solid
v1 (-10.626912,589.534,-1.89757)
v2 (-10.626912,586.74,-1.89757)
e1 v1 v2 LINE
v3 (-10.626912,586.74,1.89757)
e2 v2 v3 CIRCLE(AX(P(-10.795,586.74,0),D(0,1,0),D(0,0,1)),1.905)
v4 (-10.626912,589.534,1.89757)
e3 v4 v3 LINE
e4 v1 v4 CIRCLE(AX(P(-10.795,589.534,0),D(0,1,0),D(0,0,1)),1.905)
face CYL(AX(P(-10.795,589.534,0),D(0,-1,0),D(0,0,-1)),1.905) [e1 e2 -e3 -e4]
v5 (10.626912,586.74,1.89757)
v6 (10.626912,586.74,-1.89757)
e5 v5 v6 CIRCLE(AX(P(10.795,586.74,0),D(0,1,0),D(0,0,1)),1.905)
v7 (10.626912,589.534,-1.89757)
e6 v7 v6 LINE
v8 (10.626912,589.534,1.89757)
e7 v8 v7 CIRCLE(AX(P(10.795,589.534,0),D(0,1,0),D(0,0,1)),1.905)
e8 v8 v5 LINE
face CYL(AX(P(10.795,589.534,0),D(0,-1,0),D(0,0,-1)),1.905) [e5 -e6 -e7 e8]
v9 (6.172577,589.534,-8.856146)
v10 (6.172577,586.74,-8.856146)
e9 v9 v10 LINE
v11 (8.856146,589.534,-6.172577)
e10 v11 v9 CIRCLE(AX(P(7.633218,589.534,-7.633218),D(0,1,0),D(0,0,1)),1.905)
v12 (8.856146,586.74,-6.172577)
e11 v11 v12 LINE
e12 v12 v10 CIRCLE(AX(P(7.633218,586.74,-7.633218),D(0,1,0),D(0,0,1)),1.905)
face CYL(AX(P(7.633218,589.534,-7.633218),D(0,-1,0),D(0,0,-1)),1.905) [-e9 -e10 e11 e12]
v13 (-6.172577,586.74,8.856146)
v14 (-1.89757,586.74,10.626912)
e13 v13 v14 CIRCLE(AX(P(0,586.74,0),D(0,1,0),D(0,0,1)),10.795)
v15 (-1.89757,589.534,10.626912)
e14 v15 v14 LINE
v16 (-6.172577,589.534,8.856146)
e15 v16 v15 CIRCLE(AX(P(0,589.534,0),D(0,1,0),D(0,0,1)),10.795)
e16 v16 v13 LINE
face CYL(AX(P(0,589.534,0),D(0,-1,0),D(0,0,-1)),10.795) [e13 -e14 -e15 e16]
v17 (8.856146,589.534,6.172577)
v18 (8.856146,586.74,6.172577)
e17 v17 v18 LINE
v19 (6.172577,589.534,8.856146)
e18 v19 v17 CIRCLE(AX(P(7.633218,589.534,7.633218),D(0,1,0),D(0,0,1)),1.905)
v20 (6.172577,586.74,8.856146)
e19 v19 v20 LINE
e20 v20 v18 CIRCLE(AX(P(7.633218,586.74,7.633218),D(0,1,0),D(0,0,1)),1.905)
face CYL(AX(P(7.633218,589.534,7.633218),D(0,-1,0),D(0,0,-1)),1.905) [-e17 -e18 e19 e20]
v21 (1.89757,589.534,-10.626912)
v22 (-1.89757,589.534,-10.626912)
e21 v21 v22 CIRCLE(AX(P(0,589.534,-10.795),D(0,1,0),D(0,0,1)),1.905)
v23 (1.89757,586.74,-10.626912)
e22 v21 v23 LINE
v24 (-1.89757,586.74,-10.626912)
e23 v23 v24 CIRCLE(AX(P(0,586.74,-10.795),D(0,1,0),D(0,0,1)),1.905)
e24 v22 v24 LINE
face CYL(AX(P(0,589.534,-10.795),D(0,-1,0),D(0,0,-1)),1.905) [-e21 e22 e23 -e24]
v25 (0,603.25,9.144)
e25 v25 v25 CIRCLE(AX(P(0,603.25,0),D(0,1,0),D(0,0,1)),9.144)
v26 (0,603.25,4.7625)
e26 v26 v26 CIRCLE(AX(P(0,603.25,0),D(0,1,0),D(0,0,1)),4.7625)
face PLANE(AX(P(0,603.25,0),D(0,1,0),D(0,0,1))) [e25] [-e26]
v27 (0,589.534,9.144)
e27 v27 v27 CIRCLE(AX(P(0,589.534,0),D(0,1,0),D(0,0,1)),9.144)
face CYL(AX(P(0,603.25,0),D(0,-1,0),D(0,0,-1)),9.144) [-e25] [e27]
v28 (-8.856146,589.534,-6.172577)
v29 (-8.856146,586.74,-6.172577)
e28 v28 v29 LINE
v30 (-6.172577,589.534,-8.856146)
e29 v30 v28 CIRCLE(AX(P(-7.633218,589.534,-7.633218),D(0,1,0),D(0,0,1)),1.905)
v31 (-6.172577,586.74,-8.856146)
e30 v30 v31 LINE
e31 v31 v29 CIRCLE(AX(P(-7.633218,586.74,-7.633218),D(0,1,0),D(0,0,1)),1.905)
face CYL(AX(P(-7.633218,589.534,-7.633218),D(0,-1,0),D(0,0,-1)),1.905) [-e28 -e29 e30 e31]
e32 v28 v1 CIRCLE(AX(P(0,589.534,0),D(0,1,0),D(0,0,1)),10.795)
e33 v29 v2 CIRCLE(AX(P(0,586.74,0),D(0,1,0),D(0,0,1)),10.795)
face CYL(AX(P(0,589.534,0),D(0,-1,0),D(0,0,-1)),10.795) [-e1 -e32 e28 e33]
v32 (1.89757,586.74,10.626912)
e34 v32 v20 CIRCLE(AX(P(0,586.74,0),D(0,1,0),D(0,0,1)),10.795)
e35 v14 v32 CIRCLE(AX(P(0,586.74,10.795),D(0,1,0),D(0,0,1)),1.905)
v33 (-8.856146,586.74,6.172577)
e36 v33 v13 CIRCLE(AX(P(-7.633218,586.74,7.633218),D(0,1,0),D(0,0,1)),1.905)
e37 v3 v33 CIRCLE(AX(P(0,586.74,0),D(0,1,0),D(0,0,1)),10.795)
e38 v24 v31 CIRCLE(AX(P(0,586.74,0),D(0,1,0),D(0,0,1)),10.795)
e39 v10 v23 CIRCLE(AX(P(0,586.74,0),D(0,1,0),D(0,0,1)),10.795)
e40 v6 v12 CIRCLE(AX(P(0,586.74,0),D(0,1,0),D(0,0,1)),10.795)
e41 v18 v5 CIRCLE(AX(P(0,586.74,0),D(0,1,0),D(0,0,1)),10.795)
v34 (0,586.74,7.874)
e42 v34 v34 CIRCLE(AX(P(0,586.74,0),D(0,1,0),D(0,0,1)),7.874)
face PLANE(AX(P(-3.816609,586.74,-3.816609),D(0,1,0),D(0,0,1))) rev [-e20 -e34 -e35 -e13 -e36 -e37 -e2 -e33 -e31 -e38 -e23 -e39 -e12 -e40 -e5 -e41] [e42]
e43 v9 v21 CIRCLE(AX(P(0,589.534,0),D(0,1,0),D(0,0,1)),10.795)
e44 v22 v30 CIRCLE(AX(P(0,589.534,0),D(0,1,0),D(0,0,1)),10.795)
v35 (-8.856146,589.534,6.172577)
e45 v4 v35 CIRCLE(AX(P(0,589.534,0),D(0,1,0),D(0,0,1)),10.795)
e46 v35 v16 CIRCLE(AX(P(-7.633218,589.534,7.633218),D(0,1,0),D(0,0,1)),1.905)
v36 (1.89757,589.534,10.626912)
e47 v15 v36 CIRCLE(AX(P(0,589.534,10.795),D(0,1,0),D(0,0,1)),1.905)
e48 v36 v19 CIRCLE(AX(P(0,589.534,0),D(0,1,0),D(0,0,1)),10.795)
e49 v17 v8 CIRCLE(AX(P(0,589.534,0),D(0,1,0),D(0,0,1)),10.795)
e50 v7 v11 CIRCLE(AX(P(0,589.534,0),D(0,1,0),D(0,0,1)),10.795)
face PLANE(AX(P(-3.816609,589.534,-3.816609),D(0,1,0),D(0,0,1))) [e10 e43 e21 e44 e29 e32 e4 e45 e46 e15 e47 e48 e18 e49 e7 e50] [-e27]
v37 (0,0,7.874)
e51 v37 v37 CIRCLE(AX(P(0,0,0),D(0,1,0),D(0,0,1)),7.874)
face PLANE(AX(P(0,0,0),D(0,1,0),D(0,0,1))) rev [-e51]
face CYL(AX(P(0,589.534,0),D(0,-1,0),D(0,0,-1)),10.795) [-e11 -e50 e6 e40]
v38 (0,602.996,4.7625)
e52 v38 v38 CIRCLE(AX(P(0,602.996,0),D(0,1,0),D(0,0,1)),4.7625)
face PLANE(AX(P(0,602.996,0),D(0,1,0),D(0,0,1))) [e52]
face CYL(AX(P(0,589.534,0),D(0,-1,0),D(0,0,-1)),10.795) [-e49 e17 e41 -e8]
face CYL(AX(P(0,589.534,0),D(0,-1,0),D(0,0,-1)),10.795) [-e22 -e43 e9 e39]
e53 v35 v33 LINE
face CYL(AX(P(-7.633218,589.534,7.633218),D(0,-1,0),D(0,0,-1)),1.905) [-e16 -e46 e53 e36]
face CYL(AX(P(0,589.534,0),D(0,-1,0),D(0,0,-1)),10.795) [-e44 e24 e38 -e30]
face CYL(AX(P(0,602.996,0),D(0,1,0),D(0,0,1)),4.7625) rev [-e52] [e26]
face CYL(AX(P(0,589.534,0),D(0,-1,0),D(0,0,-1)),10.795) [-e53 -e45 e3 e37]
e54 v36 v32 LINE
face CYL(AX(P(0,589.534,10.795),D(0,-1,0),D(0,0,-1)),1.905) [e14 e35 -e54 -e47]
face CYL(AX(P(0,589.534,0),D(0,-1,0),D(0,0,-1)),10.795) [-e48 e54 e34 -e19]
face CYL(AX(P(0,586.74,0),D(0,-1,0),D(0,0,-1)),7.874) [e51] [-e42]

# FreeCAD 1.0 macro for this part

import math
import FreeCAD as App
import Part
import Sketcher
Q = App.Units.Quantity

doc = App.newDocument("Part")
body = doc.addObject("PartDesign::Body", "Body")

# Sketch on XZ plane
sketch1 = body.newObject("Sketcher::SketchObject", "Sketch")
sketch1.AttachmentSupport = (doc.getObject("XZ_Plane"), [""])
sketch1.MapMode = "FlatFace"
sketch1.addGeometry(Part.Circle(App.Vector(0, 0, 0), App.Vector(0, 0, 1), 8), False)
sketch1.addConstraint(Sketcher.Constraint("Coincident", 0, 3, -1, 1))
sketch1.addConstraint(Sketcher.Constraint("Diameter", 0, Q("0.62 in")))
pad1 = body.newObject("PartDesign::Pad", "Pad")
pad1.Profile = sketch1
pad1.Length = Q("23.1 in")
pad1.Reversed = True

# Sketch on XZ plane
sketch2 = body.newObject("Sketcher::SketchObject", "Sketch001")
sketch2.AttachmentSupport = (doc.getObject("XZ_Plane"), [""])
sketch2.MapMode = "FlatFace"
sketch2.AttachmentOffset = App.Placement(App.Vector(0, 0, -23.1 * 25.4), App.Rotation())
sketch2.addGeometry(Part.ArcOfCircle(Part.Circle(App.Vector(0, 0, 0), App.Vector(0, 0, 1), 10.8), math.radians(-170), math.radians(-145)), False)
sketch2.addGeometry(Part.ArcOfCircle(Part.Circle(App.Vector(-10.8, 0, 0), App.Vector(0, 0, 1), 1.9), math.radians(85), math.radians(275)), False)
sketch2.addGeometry(Part.ArcOfCircle(Part.Circle(App.Vector(0, 0, 0), App.Vector(0, 0, 1), 10.8), math.radians(145), math.radians(170)), False)
sketch2.addGeometry(Part.ArcOfCircle(Part.Circle(App.Vector(-7.6, 7.6, 0), App.Vector(0, 0, 1), 1.9), math.radians(40), math.radians(230)), False)
sketch2.addGeometry(Part.ArcOfCircle(Part.Circle(App.Vector(0, 0, 0), App.Vector(0, 0, 1), 10.8), math.radians(100), math.radians(125)), False)
sketch2.addGeometry(Part.ArcOfCircle(Part.Circle(App.Vector(0, 10.8, 0), App.Vector(0, 0, 1), 1.9), math.radians(-5), math.radians(185)), False)
sketch2.addGeometry(Part.ArcOfCircle(Part.Circle(App.Vector(0, 0, 0), App.Vector(0, 0, 1), 10.8), math.radians(55), math.radians(80)), False)
sketch2.addGeometry(Part.ArcOfCircle(Part.Circle(App.Vector(7.6, 7.6, 0), App.Vector(0, 0, 1), 1.9), math.radians(-50), math.radians(140)), False)
sketch2.addGeometry(Part.ArcOfCircle(Part.Circle(App.Vector(0, 0, 0), App.Vector(0, 0, 1), 10.8), math.radians(10), math.radians(35)), False)
sketch2.addGeometry(Part.ArcOfCircle(Part.Circle(App.Vector(10.8, 0, 0), App.Vector(0, 0, 1), 1.9), math.radians(-95), math.radians(95)), False)
sketch2.addGeometry(Part.ArcOfCircle(Part.Circle(App.Vector(0, 0, 0), App.Vector(0, 0, 1), 10.8), math.radians(-35), math.radians(-10)), False)
sketch2.addGeometry(Part.ArcOfCircle(Part.Circle(App.Vector(7.6, -7.6, 0), App.Vector(0, 0, 1), 1.9), math.radians(-140), math.radians(50)), False)
sketch2.addGeometry(Part.ArcOfCircle(Part.Circle(App.Vector(0, 0, 0), App.Vector(0, 0, 1), 10.8), math.radians(-80), math.radians(-55)), False)
sketch2.addGeometry(Part.ArcOfCircle(Part.Circle(App.Vector(0, -10.8, 0), App.Vector(0, 0, 1), 1.9), math.radians(175), math.radians(365)), False)
sketch2.addGeometry(Part.ArcOfCircle(Part.Circle(App.Vector(0, 0, 0), App.Vector(0, 0, 1), 10.8), math.radians(-125), math.radians(-100)), False)
sketch2.addGeometry(Part.ArcOfCircle(Part.Circle(App.Vector(-7.6, -7.6, 0), App.Vector(0, 0, 1), 1.9), math.radians(130), math.radians(320)), False)
sketch2.addConstraint(Sketcher.Constraint("Coincident", 0, 1, 1, 2))
sketch2.addConstraint(Sketcher.Constraint("Coincident", 1, 1, 2, 2))
sketch2.addConstraint(Sketcher.Constraint("Coincident", 2, 1, 3, 2))
sketch2.addConstraint(Sketcher.Constraint("Coincident", 3, 1, 4, 2))
sketch2.addConstraint(Sketcher.Constraint("Coincident", 4, 1, 5, 2))
sketch2.addConstraint(Sketcher.Constraint("Coincident", 5, 1, 6, 2))
sketch2.addConstraint(Sketcher.Constraint("Coincident", 6, 1, 7, 2))
sketch2.addConstraint(Sketcher.Constraint("Coincident", 7, 1, 8, 2))
sketch2.addConstraint(Sketcher.Constraint("Coincident", 8, 1, 9, 2))
sketch2.addConstraint(Sketcher.Constraint("Coincident", 9, 1, 10, 2))
sketch2.addConstraint(Sketcher.Constraint("Coincident", 10, 1, 11, 2))
sketch2.addConstraint(Sketcher.Constraint("Coincident", 11, 1, 12, 2))
sketch2.addConstraint(Sketcher.Constraint("Coincident", 12, 1, 13, 2))
sketch2.addConstraint(Sketcher.Constraint("Coincident", 13, 1, 14, 2))
sketch2.addConstraint(Sketcher.Constraint("Coincident", 14, 1, 15, 2))
sketch2.addConstraint(Sketcher.Constraint("Coincident", 15, 1, 0, 2))
sketch2.addConstraint(Sketcher.Constraint("Coincident", 0, 3, -1, 1))
sketch2.addConstraint(Sketcher.Constraint("Coincident", 2, 3, -1, 1))
sketch2.addConstraint(Sketcher.Constraint("Coincident", 4, 3, -1, 1))
sketch2.addConstraint(Sketcher.Constraint("Coincident", 6, 3, -1, 1))
sketch2.addConstraint(Sketcher.Constraint("Coincident", 8, 3, -1, 1))
sketch2.addConstraint(Sketcher.Constraint("Coincident", 10, 3, -1, 1))
sketch2.addConstraint(Sketcher.Constraint("Coincident", 12, 3, -1, 1))
sketch2.addConstraint(Sketcher.Constraint("Coincident", 14, 3, -1, 1))
sketch2.addConstraint(Sketcher.Constraint("Equal", 0, 2))
sketch2.addConstraint(Sketcher.Constraint("Equal", 1, 3))
sketch2.addConstraint(Sketcher.Constraint("Equal", 2, 4))
sketch2.addConstraint(Sketcher.Constraint("Equal", 3, 5))
sketch2.addConstraint(Sketcher.Constraint("Equal", 4, 6))
sketch2.addConstraint(Sketcher.Constraint("Equal", 5, 7))
sketch2.addConstraint(Sketcher.Constraint("Equal", 6, 8))
sketch2.addConstraint(Sketcher.Constraint("Equal", 7, 9))
sketch2.addConstraint(Sketcher.Constraint("Equal", 8, 10))
sketch2.addConstraint(Sketcher.Constraint("Equal", 9, 11))
sketch2.addConstraint(Sketcher.Constraint("Equal", 10, 12))
sketch2.addConstraint(Sketcher.Constraint("Equal", 11, 13))
sketch2.addConstraint(Sketcher.Constraint("Equal", 12, 14))
sketch2.addConstraint(Sketcher.Constraint("Equal", 13, 15))
sketch2.addConstraint(Sketcher.Constraint("Symmetric", 1, 3, 9, 3, -1, 1))
sketch2.addConstraint(Sketcher.Constraint("Symmetric", 3, 3, 11, 3, -1, 1))
sketch2.addConstraint(Sketcher.Constraint("Symmetric", 5, 3, 13, 3, -1, 1))
sketch2.addConstraint(Sketcher.Constraint("Symmetric", 7, 3, 15, 3, -1, 1))
sketch2.addConstraint(Sketcher.Constraint("Symmetric", 3, 3, 7, 3, -2))
sketch2.addConstraint(Sketcher.Constraint("PointOnObject", 1, 3, -1))
sketch2.addConstraint(Sketcher.Constraint("PointOnObject", 5, 3, -2))
sketch2.addConstraint(Sketcher.Constraint("Radius", 0, Q("0.425 in")))
sketch2.addConstraint(Sketcher.Constraint("Radius", 1, Q("0.075 in")))
sketch2.addConstraint(Sketcher.Constraint("DistanceX", 1, 3, -1, 1, Q("0.425 in")))
sketch2.addConstraint(Sketcher.Constraint("DistanceY", -1, 1, 5, 3, Q("0.425 in")))
sketch2.addConstraint(Sketcher.Constraint("DistanceX", 2, 1, 3, 3, 1.222928))
sketch2.addConstraint(Sketcher.Constraint("DistanceX", 3, 3, 3, 1, 1.460641))
pad2 = body.newObject("PartDesign::Pad", "Pad001")
pad2.Profile = sketch2
pad2.Length = Q("0.11 in")
pad2.Reversed = True

# Sketch on XZ plane
sketch3 = body.newObject("Sketcher::SketchObject", "Sketch002")
sketch3.AttachmentSupport = (doc.getObject("XZ_Plane"), [""])
sketch3.MapMode = "FlatFace"
sketch3.AttachmentOffset = App.Placement(App.Vector(0, 0, -23.21 * 25.4), App.Rotation())
sketch3.addGeometry(Part.Circle(App.Vector(0, 0, 0), App.Vector(0, 0, 1), 9), False)
sketch3.addConstraint(Sketcher.Constraint("Coincident", 0, 3, -1, 1))
sketch3.addConstraint(Sketcher.Constraint("Diameter", 0, Q("0.72 in")))
pad3 = body.newObject("PartDesign::Pad", "Pad002")
pad3.Profile = sketch3
pad3.Length = Q("0.54 in")
pad3.Reversed = True

# Sketch on XZ plane
sketch4 = body.newObject("Sketcher::SketchObject", "Sketch003")
sketch4.AttachmentSupport = (doc.getObject("XZ_Plane"), [""])
sketch4.MapMode = "FlatFace"
sketch4.AttachmentOffset = App.Placement(App.Vector(0, 0, -23.75 * 25.4), App.Rotation())
sketch4.addGeometry(Part.Circle(App.Vector(0, 0, 0), App.Vector(0, 0, 1), 4.8), False)
sketch4.addConstraint(Sketcher.Constraint("Coincident", 0, 3, -1, 1))
sketch4.addConstraint(Sketcher.Constraint("Diameter", 0, Q("0.375 in")))
pocket1 = body.newObject("PartDesign::Pocket", "Pocket")
pocket1.Profile = sketch4
pocket1.Length = Q("0.01 in")
pocket1.Reversed = True

doc.recompute()
